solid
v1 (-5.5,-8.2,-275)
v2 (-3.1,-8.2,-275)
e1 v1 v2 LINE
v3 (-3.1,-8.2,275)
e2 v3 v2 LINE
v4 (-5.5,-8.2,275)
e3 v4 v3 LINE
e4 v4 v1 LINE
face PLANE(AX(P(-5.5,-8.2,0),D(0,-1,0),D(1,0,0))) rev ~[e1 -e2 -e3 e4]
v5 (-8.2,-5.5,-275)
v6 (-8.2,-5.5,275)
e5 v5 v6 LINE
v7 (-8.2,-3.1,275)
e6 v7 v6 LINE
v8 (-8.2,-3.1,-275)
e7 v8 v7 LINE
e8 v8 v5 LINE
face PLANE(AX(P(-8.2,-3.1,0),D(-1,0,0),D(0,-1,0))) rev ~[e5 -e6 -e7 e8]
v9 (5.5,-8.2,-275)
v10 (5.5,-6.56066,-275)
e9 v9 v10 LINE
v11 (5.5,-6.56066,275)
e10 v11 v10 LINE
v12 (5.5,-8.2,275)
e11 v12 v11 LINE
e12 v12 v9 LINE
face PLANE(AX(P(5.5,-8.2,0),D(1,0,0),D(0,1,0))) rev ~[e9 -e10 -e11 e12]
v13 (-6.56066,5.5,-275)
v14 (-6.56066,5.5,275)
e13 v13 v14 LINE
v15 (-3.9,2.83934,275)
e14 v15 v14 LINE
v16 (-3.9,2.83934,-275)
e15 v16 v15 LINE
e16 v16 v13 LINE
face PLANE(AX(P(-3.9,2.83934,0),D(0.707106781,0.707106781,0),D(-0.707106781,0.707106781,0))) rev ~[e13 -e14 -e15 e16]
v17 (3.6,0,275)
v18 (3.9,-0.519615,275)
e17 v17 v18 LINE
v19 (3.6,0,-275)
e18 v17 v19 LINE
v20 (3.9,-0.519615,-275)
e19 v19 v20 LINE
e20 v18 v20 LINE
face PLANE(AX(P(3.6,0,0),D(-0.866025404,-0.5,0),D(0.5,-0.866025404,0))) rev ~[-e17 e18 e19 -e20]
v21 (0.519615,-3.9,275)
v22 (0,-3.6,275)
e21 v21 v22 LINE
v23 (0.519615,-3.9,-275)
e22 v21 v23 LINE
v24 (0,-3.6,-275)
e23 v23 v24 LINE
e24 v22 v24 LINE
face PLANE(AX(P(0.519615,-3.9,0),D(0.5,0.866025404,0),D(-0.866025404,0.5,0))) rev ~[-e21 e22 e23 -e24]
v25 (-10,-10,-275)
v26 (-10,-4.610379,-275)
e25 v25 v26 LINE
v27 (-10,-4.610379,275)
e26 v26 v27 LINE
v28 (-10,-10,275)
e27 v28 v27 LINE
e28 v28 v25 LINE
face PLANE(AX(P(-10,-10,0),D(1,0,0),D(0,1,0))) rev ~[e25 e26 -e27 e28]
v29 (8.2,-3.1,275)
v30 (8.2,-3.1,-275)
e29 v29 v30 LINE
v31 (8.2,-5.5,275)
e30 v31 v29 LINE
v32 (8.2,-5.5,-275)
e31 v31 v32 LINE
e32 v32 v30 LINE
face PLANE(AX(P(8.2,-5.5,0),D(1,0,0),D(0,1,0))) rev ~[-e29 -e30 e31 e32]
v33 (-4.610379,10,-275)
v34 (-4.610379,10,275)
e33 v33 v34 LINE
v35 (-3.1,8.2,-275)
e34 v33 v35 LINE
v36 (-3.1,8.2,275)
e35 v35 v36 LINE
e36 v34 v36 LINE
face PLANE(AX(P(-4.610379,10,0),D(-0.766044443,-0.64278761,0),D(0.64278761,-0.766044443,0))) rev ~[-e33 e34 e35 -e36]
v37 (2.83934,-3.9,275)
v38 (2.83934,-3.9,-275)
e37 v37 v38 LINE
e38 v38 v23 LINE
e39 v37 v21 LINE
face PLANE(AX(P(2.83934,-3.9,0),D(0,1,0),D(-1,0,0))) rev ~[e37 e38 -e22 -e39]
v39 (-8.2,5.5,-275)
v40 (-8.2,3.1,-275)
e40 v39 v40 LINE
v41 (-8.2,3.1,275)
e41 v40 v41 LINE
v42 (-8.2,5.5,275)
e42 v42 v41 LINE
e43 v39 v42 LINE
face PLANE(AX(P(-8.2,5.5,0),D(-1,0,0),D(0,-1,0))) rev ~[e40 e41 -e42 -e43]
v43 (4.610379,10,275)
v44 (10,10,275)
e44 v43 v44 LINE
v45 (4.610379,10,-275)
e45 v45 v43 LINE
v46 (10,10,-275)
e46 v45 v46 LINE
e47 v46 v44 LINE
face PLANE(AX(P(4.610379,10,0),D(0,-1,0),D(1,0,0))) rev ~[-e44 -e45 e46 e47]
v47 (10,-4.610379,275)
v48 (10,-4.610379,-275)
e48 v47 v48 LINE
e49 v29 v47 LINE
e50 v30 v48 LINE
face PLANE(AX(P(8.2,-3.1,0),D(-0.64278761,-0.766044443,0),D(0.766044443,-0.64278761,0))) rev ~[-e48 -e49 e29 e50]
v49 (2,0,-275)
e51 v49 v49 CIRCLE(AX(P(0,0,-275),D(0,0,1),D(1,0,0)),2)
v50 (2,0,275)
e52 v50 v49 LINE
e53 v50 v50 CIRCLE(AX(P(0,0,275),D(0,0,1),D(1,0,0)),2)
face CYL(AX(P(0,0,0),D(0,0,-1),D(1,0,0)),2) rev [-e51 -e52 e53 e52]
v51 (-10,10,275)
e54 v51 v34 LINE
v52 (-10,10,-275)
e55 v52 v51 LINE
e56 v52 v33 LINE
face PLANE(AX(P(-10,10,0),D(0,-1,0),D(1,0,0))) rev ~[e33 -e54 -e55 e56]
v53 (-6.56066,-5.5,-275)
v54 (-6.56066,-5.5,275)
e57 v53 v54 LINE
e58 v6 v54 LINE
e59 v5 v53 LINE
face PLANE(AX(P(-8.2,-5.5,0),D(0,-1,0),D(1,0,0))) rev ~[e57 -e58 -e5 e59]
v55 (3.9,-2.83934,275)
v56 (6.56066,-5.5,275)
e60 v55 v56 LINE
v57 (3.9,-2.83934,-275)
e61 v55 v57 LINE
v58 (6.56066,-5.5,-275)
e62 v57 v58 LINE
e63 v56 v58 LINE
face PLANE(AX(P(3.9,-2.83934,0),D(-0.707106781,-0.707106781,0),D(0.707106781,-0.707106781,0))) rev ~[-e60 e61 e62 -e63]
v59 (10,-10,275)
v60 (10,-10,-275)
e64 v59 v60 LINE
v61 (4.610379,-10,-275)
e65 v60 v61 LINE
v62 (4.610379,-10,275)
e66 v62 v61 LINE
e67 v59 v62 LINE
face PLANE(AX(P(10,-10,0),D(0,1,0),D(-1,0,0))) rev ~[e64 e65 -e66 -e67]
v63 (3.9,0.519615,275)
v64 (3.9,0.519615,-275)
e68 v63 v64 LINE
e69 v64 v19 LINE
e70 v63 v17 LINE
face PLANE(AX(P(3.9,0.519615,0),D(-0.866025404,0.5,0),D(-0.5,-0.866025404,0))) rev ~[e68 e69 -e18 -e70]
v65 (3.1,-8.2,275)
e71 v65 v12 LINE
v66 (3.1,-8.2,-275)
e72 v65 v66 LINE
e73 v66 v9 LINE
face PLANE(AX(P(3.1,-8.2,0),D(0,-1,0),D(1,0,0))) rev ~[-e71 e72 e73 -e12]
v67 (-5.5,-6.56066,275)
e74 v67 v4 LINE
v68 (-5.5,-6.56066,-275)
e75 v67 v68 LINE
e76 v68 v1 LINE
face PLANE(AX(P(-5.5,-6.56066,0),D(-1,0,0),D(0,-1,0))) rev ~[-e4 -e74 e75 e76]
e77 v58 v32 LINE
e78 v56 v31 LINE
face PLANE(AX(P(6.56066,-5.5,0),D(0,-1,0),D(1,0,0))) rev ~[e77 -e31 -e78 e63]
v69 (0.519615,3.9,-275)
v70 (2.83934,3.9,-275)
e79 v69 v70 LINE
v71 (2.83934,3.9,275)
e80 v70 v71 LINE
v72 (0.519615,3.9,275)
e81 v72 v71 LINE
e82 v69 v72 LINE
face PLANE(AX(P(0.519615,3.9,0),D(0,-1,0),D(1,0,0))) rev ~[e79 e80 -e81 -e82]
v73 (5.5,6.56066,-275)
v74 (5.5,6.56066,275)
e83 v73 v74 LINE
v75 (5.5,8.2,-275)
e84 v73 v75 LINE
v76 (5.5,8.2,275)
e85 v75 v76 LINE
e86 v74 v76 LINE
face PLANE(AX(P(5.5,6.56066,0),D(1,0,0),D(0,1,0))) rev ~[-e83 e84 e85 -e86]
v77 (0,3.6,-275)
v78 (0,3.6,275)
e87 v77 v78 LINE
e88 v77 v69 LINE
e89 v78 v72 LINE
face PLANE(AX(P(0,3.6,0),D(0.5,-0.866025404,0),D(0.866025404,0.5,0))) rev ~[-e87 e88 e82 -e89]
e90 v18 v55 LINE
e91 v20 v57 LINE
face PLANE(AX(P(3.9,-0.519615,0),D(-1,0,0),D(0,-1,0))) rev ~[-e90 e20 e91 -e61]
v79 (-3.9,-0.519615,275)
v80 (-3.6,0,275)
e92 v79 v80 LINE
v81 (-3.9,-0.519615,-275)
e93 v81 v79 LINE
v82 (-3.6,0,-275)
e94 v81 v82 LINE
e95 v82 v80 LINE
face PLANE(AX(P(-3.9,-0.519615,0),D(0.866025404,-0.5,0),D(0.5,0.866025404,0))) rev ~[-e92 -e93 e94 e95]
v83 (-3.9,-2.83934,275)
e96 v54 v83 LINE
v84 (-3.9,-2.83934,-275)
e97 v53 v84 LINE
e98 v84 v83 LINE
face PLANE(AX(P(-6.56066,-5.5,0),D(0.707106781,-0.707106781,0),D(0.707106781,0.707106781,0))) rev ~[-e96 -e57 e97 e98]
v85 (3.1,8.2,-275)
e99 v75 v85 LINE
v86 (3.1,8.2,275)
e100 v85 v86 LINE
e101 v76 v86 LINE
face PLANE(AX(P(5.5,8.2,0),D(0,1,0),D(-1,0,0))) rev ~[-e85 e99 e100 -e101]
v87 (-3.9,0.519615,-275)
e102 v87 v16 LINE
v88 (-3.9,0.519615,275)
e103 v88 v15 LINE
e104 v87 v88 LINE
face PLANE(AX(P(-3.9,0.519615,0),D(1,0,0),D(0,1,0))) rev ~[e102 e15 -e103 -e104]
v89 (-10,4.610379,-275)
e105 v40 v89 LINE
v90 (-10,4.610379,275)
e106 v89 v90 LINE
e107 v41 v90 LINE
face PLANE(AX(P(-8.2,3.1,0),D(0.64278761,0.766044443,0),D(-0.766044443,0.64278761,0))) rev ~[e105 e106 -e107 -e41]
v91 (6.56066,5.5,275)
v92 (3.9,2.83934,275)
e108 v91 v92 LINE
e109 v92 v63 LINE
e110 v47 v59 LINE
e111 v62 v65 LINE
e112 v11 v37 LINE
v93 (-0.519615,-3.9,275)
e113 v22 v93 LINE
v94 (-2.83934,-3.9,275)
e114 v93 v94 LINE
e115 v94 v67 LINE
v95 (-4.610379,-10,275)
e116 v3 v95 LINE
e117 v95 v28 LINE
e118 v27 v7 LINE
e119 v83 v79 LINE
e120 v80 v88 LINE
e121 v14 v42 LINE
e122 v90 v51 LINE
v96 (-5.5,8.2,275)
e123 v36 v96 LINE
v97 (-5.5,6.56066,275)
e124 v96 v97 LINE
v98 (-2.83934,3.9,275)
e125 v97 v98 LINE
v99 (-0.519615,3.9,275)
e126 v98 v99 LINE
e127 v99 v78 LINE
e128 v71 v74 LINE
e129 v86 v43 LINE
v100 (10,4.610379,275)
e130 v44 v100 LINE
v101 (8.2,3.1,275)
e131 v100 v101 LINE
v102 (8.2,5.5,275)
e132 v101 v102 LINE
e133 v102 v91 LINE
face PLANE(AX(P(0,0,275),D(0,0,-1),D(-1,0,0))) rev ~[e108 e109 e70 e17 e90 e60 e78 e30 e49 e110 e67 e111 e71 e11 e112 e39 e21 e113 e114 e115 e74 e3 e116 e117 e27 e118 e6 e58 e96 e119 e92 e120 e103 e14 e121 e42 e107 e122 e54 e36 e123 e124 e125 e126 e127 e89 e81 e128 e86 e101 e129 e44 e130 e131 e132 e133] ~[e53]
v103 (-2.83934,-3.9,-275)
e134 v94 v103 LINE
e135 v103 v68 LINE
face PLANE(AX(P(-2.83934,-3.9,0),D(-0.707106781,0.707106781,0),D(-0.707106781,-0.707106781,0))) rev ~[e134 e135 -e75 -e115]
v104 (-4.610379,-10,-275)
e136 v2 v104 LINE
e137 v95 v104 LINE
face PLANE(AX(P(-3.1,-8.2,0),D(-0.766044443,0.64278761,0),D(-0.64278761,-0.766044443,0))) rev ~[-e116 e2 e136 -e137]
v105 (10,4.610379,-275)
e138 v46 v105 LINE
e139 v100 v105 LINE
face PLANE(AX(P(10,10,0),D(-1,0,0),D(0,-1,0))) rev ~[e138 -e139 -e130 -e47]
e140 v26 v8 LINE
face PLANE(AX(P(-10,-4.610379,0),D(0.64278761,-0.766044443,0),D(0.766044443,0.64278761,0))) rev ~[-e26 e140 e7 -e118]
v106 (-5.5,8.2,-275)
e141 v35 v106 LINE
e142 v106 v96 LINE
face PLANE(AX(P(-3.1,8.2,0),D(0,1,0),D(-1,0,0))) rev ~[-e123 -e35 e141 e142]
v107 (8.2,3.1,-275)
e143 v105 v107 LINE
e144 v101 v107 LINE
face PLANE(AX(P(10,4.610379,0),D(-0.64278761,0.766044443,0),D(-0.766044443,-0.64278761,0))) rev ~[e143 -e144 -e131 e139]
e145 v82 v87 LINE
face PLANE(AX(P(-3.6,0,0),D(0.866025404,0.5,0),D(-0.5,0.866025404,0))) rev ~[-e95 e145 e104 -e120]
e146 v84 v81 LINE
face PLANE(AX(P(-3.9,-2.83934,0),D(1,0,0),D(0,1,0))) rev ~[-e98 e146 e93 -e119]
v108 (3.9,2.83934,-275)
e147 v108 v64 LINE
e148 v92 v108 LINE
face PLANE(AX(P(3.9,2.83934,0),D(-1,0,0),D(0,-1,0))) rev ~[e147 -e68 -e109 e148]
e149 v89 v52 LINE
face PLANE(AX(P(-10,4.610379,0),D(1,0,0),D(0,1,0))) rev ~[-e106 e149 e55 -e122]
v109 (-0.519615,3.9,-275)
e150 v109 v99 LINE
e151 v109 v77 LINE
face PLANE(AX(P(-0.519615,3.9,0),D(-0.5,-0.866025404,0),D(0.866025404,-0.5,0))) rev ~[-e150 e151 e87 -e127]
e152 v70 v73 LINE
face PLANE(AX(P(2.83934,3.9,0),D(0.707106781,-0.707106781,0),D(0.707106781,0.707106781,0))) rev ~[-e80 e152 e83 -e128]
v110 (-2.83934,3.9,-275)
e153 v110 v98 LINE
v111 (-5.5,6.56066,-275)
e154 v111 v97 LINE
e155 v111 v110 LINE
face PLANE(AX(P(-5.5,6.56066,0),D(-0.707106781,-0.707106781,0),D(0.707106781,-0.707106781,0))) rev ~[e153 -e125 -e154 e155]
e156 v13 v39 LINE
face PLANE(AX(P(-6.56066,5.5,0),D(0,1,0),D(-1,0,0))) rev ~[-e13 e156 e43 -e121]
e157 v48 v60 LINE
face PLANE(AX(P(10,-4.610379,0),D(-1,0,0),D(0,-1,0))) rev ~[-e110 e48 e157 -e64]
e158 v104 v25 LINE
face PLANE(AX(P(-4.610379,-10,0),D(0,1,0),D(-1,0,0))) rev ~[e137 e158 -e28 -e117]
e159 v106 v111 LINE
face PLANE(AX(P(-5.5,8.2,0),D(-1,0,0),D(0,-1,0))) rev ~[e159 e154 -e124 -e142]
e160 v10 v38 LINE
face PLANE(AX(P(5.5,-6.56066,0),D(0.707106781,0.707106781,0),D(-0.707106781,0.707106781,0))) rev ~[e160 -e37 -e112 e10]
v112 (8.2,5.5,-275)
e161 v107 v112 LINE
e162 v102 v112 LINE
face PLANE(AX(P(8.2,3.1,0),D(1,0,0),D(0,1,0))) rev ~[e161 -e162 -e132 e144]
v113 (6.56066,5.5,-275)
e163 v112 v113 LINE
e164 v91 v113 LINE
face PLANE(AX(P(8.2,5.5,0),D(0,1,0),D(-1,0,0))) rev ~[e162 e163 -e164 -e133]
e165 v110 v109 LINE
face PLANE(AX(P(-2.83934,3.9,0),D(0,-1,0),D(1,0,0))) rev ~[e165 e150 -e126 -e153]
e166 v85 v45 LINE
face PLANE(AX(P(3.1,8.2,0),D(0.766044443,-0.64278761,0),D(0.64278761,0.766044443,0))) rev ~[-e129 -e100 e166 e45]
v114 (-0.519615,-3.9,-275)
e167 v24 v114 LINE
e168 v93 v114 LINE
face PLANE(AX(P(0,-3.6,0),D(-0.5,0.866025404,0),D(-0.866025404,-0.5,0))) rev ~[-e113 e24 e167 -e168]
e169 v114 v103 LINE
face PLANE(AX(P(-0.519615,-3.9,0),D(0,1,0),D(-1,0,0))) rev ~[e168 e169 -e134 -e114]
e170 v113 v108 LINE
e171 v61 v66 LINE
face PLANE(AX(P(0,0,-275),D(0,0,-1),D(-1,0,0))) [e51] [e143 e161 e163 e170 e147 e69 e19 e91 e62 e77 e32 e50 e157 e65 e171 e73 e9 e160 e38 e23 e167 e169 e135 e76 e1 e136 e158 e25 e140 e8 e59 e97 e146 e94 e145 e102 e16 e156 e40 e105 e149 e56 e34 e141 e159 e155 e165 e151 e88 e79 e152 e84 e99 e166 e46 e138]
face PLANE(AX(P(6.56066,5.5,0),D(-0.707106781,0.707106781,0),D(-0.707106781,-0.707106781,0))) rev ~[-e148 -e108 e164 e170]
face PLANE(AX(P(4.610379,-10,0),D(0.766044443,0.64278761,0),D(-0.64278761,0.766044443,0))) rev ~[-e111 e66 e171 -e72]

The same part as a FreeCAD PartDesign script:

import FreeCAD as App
import Part
import Sketcher
Q = App.Units.Quantity


def add_polygon(sketch, points):
    """Adds a closed chain of lines whose ends are joined by coincident constraints."""
    first, n = sketch.GeometryCount, len(points)
    for a, b in zip(points, points[1:] + points[:1]):
        sketch.addGeometry(Part.LineSegment(App.Vector(*a, 0), App.Vector(*b, 0)), False)
    for i in range(n):
        sketch.addConstraint(Sketcher.Constraint("Coincident", first + i, 2, first + (i + 1) % n, 1))

doc = App.newDocument("Part")
body = doc.addObject("PartDesign::Body", "Body")

# Sketch on XY plane
sketch1 = body.newObject("Sketcher::SketchObject", "Sketch")
sketch1.AttachmentSupport = (doc.getObject("XY_Plane"), [""])
sketch1.MapMode = "FlatFace"
add_polygon(sketch1, [(10, 4.6), (10, 10), (4.6, 10), (3.1, 8.2), (5.5, 8.2), (5.5, 6.6), (2.8, 3.9), (0.5, 3.9), (0, 3.6), (-0.5, 3.9), (-2.8, 3.9), (-5.5, 6.6), (-5.5, 8.2), (-3.1, 8.2), (-4.6, 10), (-10, 10), (-10, 4.6), (-8.2, 3.1), (-8.2, 5.5), (-6.6, 5.5), (-3.9, 2.8), (-3.9, 0.5), (-3.6, 0), (-3.9, -0.5), (-3.9, -2.8), (-6.6, -5.5), (-8.2, -5.5), (-8.2, -3.1), (-10, -4.6), (-10, -10), (-4.6, -10), (-3.1, -8.2), (-5.5, -8.2), (-5.5, -6.6), (-2.8, -3.9), (-0.5, -3.9), (0, -3.6), (0.5, -3.9), (2.8, -3.9), (5.5, -6.6), (5.5, -8.2), (3.1, -8.2), (4.6, -10), (10, -10), (10, -4.6), (8.2, -3.1), (8.2, -5.5), (6.6, -5.5), (3.9, -2.8), (3.9, -0.5), (3.6, 0), (3.9, 0.5), (3.9, 2.8), (6.6, 5.5), (8.2, 5.5), (8.2, 3.1)])  # lines 0-55
sketch1.addGeometry(Part.Circle(App.Vector(0, 0, 0), App.Vector(0, 0, 1), 2), False)  # 56
sketch1.addConstraint(Sketcher.Constraint("Vertical", 0))
sketch1.addConstraint(Sketcher.Constraint("Horizontal", 1))
sketch1.addConstraint(Sketcher.Constraint("Horizontal", 3))
sketch1.addConstraint(Sketcher.Constraint("Vertical", 4))
sketch1.addConstraint(Sketcher.Constraint("Horizontal", 6))
sketch1.addConstraint(Sketcher.Constraint("Horizontal", 9))
sketch1.addConstraint(Sketcher.Constraint("Vertical", 11))
sketch1.addConstraint(Sketcher.Constraint("Horizontal", 12))
sketch1.addConstraint(Sketcher.Constraint("Horizontal", 14))
sketch1.addConstraint(Sketcher.Constraint("Vertical", 15))
sketch1.addConstraint(Sketcher.Constraint("Vertical", 17))
sketch1.addConstraint(Sketcher.Constraint("Horizontal", 18))
sketch1.addConstraint(Sketcher.Constraint("Vertical", 20))
sketch1.addConstraint(Sketcher.Constraint("Vertical", 23))
sketch1.addConstraint(Sketcher.Constraint("Horizontal", 25))
sketch1.addConstraint(Sketcher.Constraint("Vertical", 26))
sketch1.addConstraint(Sketcher.Constraint("Vertical", 28))
sketch1.addConstraint(Sketcher.Constraint("Horizontal", 29))
sketch1.addConstraint(Sketcher.Constraint("Horizontal", 31))
sketch1.addConstraint(Sketcher.Constraint("Vertical", 32))
sketch1.addConstraint(Sketcher.Constraint("Horizontal", 34))
sketch1.addConstraint(Sketcher.Constraint("Horizontal", 37))
sketch1.addConstraint(Sketcher.Constraint("Vertical", 39))
sketch1.addConstraint(Sketcher.Constraint("Horizontal", 40))
sketch1.addConstraint(Sketcher.Constraint("Horizontal", 42))
sketch1.addConstraint(Sketcher.Constraint("Vertical", 43))
sketch1.addConstraint(Sketcher.Constraint("Vertical", 45))
sketch1.addConstraint(Sketcher.Constraint("Horizontal", 46))
sketch1.addConstraint(Sketcher.Constraint("Vertical", 48))
sketch1.addConstraint(Sketcher.Constraint("Vertical", 51))
sketch1.addConstraint(Sketcher.Constraint("Horizontal", 53))
sketch1.addConstraint(Sketcher.Constraint("Vertical", 54))
sketch1.addConstraint(Sketcher.Constraint("Coincident", 56, 3, -1, 1))
sketch1.addConstraint(Sketcher.Constraint("Symmetric", 0, 2, 28, 2, -1, 1))
sketch1.addConstraint(Sketcher.Constraint("Symmetric", 2, 2, 30, 2, -1, 1))
sketch1.addConstraint(Sketcher.Constraint("Symmetric", 4, 2, 32, 2, -1, 1))
sketch1.addConstraint(Sketcher.Constraint("Symmetric", 5, 2, 33, 2, -1, 1))
sketch1.addConstraint(Sketcher.Constraint("Symmetric", 7, 2, 35, 2, -1, 1))
sketch1.addConstraint(Sketcher.Constraint("Symmetric", 8, 2, 36, 2, -1, 1))
sketch1.addConstraint(Sketcher.Constraint("Symmetric", 10, 2, 38, 2, -1, 1))
sketch1.addConstraint(Sketcher.Constraint("Symmetric", 12, 2, 40, 2, -1, 1))
sketch1.addConstraint(Sketcher.Constraint("Symmetric", 13, 2, 41, 2, -1, 1))
sketch1.addConstraint(Sketcher.Constraint("Symmetric", 15, 2, 43, 2, -1, 1))
sketch1.addConstraint(Sketcher.Constraint("Symmetric", 16, 2, 44, 2, -1, 1))
sketch1.addConstraint(Sketcher.Constraint("Symmetric", 18, 2, 46, 2, -1, 1))
sketch1.addConstraint(Sketcher.Constraint("Symmetric", 19, 2, 47, 2, -1, 1))
sketch1.addConstraint(Sketcher.Constraint("Symmetric", 21, 2, 49, 2, -1, 1))
sketch1.addConstraint(Sketcher.Constraint("Symmetric", 22, 2, 50, 2, -1, 1))
sketch1.addConstraint(Sketcher.Constraint("Symmetric", 24, 2, 52, 2, -1, 1))
sketch1.addConstraint(Sketcher.Constraint("Symmetric", 26, 2, 54, 2, -1, 1))
sketch1.addConstraint(Sketcher.Constraint("Symmetric", 6, 2, 8, 2, -2))
sketch1.addConstraint(Sketcher.Constraint("Symmetric", 4, 2, 10, 2, -2))
sketch1.addConstraint(Sketcher.Constraint("Symmetric", 2, 2, 12, 2, -2))
sketch1.addConstraint(Sketcher.Constraint("Symmetric", 1, 2, 13, 2, -2))
sketch1.addConstraint(Sketcher.Constraint("Symmetric", 27, 2, 43, 2, -2))
sketch1.addConstraint(Sketcher.Constraint("Symmetric", 26, 2, 44, 2, -2))
sketch1.addConstraint(Sketcher.Constraint("Symmetric", 24, 2, 46, 2, -2))
sketch1.addConstraint(Sketcher.Constraint("Symmetric", 23, 2, 47, 2, -2))
sketch1.addConstraint(Sketcher.Constraint("PointOnObject", 7, 2, -2))
sketch1.addConstraint(Sketcher.Constraint("PointOnObject", 21, 2, -1))
sketch1.addConstraint(Sketcher.Constraint("Perpendicular", 5, 10))
sketch1.addConstraint(Sketcher.Constraint("Perpendicular", 2, 16))
sketch1.addConstraint(Sketcher.Constraint("Parallel", 10, 19))
sketch1.addConstraint(Sketcher.Constraint("Perpendicular", 7, 21))
sketch1.addConstraint(Sketcher.Constraint("Perpendicular", 8, 22))
sketch1.addConstraint(Sketcher.Constraint("Perpendicular", 19, 24))
sketch1.addConstraint(Sketcher.Constraint("Perpendicular", 16, 30))
sketch1.addConstraint(Sketcher.Constraint("Perpendicular", 21, 35))
sketch1.addConstraint(Sketcher.Constraint("Perpendicular", 33, 38))
sketch1.addConstraint(Sketcher.Constraint("Perpendicular", 35, 49))
sketch1.addConstraint(Sketcher.Constraint("Perpendicular", 47, 52))
sketch1.addConstraint(Sketcher.Constraint("Perpendicular", 41, 55))
sketch1.addConstraint(Sketcher.Constraint("Equal", 42, 0))
sketch1.addConstraint(Sketcher.Constraint("Equal", 53, 4))
sketch1.addConstraint(Sketcher.Constraint("Equal", 40, 17))
sketch1.addConstraint(Sketcher.Constraint("Equal", 37, 20))
sketch1.addConstraint(Sketcher.Constraint("Equal", 13, 16))
sketch1.addConstraint(Sketcher.Constraint("Equal", 10, 19))
sketch1.addConstraint(Sketcher.Constraint("Equal", 8, 21))
sketch1.addConstraint(Sketcher.Constraint("Diameter", 56, 4.0))
sketch1.addConstraint(Sketcher.Constraint("Angle", 2, Q("-130 deg")))
sketch1.addConstraint(Sketcher.Constraint("Angle", 7, Q("-150 deg")))
sketch1.addConstraint(Sketcher.Constraint("DistanceX", 3, 1, 3, 2, 2.4))
sketch1.addConstraint(Sketcher.Constraint("DistanceX", -1, 1, 0, 2, 10.0))
sketch1.addConstraint(Sketcher.Constraint("Distance", 7, 0.6))
sketch1.addConstraint(Sketcher.Constraint("DistanceX", -1, 1, 2, 2, 3.1))
sketch1.addConstraint(Sketcher.Constraint("DistanceY", -1, 1, 2, 2, 8.2))
sketch1.addConstraint(Sketcher.Constraint("DistanceY", -1, 1, 5, 2, 3.9))
sketch1.addConstraint(Sketcher.Constraint("DistanceX", 18, 1, 18, 2, 1.63934))
pad1 = body.newObject("PartDesign::Pad", "Pad")
pad1.Profile = sketch1
pad1.Length = 550
pad1.Midplane = True

doc.recompute()
